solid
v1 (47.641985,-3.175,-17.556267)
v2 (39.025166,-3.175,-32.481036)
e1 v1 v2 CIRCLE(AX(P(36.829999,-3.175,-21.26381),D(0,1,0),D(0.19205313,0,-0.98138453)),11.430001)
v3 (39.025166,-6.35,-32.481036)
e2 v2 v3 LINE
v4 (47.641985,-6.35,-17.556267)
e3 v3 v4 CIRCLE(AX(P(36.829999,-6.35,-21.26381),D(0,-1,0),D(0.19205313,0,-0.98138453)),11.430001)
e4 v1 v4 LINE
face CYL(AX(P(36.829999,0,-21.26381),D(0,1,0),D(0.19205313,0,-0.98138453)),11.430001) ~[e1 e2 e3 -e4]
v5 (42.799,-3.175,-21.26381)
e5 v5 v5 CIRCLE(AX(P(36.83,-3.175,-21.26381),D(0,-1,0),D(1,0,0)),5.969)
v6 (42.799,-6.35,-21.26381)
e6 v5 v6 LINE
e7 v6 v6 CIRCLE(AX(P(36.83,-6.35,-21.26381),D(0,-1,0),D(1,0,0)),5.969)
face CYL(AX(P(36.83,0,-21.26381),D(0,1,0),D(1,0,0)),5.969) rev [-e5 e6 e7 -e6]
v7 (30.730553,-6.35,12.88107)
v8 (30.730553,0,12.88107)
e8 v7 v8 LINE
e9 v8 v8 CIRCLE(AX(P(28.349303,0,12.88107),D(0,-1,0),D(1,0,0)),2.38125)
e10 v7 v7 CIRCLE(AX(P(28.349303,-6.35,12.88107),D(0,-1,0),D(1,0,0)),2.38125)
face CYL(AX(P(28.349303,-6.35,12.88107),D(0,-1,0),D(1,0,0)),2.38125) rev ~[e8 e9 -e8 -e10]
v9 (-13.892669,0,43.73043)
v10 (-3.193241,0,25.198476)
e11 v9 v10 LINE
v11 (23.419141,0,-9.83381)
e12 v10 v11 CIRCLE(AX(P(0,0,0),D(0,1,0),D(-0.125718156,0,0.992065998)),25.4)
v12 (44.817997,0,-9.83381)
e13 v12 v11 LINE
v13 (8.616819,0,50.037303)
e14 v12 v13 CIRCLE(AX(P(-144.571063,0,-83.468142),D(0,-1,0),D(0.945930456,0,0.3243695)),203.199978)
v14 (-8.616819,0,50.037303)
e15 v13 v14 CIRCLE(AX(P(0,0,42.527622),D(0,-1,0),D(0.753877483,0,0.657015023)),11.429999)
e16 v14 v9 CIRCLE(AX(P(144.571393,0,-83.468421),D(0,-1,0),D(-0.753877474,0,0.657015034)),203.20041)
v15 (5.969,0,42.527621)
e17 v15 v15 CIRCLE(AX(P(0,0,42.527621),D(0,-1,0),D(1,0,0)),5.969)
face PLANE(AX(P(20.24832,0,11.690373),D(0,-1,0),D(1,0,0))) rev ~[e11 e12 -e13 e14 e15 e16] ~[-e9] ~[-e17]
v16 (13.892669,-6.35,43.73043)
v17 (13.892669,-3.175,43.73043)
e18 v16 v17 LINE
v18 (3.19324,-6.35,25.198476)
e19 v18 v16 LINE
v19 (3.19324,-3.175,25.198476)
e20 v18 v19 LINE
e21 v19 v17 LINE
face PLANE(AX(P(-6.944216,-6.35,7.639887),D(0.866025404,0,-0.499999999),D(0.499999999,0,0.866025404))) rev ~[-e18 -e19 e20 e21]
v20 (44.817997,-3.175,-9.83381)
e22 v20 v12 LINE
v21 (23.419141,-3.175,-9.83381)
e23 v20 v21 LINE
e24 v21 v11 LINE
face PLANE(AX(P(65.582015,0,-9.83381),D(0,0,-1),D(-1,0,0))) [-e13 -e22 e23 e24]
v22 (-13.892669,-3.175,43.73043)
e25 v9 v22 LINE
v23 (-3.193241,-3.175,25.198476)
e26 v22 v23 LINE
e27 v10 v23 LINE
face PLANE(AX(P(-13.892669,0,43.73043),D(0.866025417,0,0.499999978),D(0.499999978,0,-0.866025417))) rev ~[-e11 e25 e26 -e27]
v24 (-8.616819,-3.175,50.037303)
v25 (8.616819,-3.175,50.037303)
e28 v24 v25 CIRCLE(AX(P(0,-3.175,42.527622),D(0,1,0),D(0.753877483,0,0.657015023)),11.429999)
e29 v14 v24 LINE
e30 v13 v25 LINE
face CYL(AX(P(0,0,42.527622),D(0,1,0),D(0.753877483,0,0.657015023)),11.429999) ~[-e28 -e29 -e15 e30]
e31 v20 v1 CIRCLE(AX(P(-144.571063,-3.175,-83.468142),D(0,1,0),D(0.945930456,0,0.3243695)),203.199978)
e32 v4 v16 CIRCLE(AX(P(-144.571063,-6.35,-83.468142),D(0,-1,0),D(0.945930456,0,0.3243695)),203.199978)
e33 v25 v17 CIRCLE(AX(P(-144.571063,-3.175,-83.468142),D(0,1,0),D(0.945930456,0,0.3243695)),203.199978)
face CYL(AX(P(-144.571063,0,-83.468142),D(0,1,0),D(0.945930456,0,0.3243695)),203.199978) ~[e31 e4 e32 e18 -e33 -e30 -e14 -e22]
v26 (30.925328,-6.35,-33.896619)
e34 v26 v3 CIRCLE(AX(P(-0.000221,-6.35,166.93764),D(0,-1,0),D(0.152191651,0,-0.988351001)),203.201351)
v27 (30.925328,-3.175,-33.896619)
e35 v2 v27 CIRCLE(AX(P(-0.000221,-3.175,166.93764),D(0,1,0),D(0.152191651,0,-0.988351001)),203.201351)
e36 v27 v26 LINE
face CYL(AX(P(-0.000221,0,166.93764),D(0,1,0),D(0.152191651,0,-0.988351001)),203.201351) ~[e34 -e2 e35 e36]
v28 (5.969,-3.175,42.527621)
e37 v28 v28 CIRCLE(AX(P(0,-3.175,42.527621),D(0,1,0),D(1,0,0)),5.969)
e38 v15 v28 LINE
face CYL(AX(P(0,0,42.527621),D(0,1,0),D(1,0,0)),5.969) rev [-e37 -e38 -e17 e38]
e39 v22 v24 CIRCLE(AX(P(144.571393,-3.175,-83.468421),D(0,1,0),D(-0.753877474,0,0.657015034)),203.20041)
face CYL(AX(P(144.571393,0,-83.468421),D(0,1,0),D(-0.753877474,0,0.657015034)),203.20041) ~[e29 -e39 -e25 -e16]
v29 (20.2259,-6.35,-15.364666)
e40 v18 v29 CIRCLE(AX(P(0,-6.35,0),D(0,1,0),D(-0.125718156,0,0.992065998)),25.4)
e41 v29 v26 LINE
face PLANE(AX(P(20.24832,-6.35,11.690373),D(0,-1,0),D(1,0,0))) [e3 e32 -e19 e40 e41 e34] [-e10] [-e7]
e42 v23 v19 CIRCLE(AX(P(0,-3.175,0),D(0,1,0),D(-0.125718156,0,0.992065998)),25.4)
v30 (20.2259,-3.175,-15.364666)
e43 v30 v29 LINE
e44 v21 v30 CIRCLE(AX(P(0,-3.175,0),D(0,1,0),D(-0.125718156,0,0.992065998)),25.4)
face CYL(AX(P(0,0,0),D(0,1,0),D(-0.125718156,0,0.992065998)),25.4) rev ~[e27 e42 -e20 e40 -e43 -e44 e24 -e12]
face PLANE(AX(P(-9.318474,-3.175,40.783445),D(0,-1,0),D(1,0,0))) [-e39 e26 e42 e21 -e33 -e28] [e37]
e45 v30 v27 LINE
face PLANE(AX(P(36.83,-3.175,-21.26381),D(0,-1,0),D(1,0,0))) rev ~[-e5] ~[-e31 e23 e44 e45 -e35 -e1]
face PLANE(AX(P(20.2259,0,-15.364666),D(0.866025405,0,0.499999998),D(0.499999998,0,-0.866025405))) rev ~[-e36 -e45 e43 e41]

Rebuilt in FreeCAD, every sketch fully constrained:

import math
import FreeCAD as App
import Part
import Sketcher
from FreeCAD import Vector
Q = App.Units.Quantity


def add_polygon(sketch, points):
    """Adds a closed chain of lines whose ends are joined by coincident constraints."""
    first, n = sketch.GeometryCount, len(points)
    for a, b in zip(points, points[1:] + points[:1]):
        sketch.addGeometry(Part.LineSegment(App.Vector(*a, 0), App.Vector(*b, 0)), False)
    for i in range(n):
        sketch.addConstraint(Sketcher.Constraint("Coincident", first + i, 2, first + (i + 1) % n, 1))

doc = App.newDocument("Part")
body = doc.addObject("PartDesign::Body", "Body")

# Sketch on XZ plane
sketch1 = doc.addObject("Sketcher::SketchObject", "Sketch")
body.addObject(sketch1)
sketch1.AttachmentSupport = (doc.XZ_Plane, [""])
sketch1.MapMode = "FlatFace"
sketch1.addGeometry(Part.ArcOfCircle(Part.Circle(Vector(0, 0, 0), Vector(0, 0, 1), 25), math.radians(-37), math.radians(97)), False)
sketch1.addGeometry(Part.LineSegment(Vector(20, -15, 0), Vector(31, -34, 0)), False)
sketch1.addGeometry(Part.ArcOfCircle(Part.Circle(Vector(0, 167, 0), Vector(0, 0, 1), 203), math.radians(-81.25), math.radians(-78.93)), False)
sketch1.addGeometry(Part.ArcOfCircle(Part.Circle(Vector(37, -21, 0), Vector(0, 0, 1), 11), math.radians(-79), math.radians(19)), False)
sketch1.addGeometry(Part.ArcOfCircle(Part.Circle(Vector(-145, -83, 0), Vector(0, 0, 1), 203), math.radians(19), math.radians(41)), False)
sketch1.addGeometry(Part.ArcOfCircle(Part.Circle(Vector(0, 43, 0), Vector(0, 0, 1), 11), math.radians(41), math.radians(139)), False)
sketch1.addGeometry(Part.ArcOfCircle(Part.Circle(Vector(145, -83, 0), Vector(0, 0, 1), 203), math.radians(138.93), math.radians(141.25)), False)
sketch1.addGeometry(Part.LineSegment(Vector(-14, 44, 0), Vector(-3, 25, 0)), False)
sketch1.addGeometry(Part.Circle(Vector(37, -21, 0), Vector(0, 0, 1), 6), False)
sketch1.addGeometry(Part.Circle(Vector(0, 43, 0), Vector(0, 0, 1), 6), False)
sketch1.addConstraint(Sketcher.Constraint("Coincident", 0, 1, 1, 1))
sketch1.addConstraint(Sketcher.Constraint("Coincident", 1, 2, 2, 1))
sketch1.addConstraint(Sketcher.Constraint("Tangent", 2, 2, 3, 1))
sketch1.addConstraint(Sketcher.Constraint("Tangent", 3, 2, 4, 1))
sketch1.addConstraint(Sketcher.Constraint("Tangent", 4, 2, 5, 1))
sketch1.addConstraint(Sketcher.Constraint("Tangent", 5, 2, 6, 1))
sketch1.addConstraint(Sketcher.Constraint("Coincident", 6, 2, 7, 1))
sketch1.addConstraint(Sketcher.Constraint("Coincident", 7, 2, 0, 2))
sketch1.addConstraint(Sketcher.Constraint("Coincident", 0, 3, -1, 1))
sketch1.addConstraint(Sketcher.Constraint("Coincident", 8, 3, 3, 3))
sketch1.addConstraint(Sketcher.Constraint("Coincident", 9, 3, 5, 3))
sketch1.addConstraint(Sketcher.Constraint("Equal", 3, 5))
sketch1.addConstraint(Sketcher.Constraint("Equal", 8, 9))
sketch1.addConstraint(Sketcher.Constraint("PointOnObject", 5, 3, -2))
sketch1.addConstraint(Sketcher.Constraint("Parallel", 1, 7))
sketch1.addConstraint(Sketcher.Constraint("Equal", 1, 7))
sketch1.addConstraint(Sketcher.Constraint("Radius", 0, Q("1 in")))
sketch1.addConstraint(Sketcher.Constraint("Diameter", 8, Q("0.47 in")))
sketch1.addConstraint(Sketcher.Constraint("Radius", 3, Q("0.45 in")))
sketch1.addConstraint(Sketcher.Constraint("Angle", 1, Q("-60 deg")))
sketch1.addConstraint(Sketcher.Constraint("DistanceX", -1, 1, 3, 3, Q("1.4499999 in")))
sketch1.addConstraint(Sketcher.Constraint("Radius", 2, 203.201351))
sketch1.addConstraint(Sketcher.Constraint("Radius", 4, 203.199978))
sketch1.addConstraint(Sketcher.Constraint("Radius", 6, 203.20041))
sketch1.addConstraint(Sketcher.Constraint("DistanceX", -1, 1, 0, 1, 20.2259))
sketch1.addConstraint(Sketcher.Constraint("DistanceY", 3, 2, 0, 1, 2.191601))
sketch1.addConstraint(Sketcher.Constraint("DistanceX", 2, 3, -1, 1, 0.000221))
sketch1.addConstraint(Sketcher.Constraint("DistanceY", -1, 1, 2, 3, 166.93764))
sketch1.addConstraint(Sketcher.Constraint("DistanceY", 6, 3, -1, 1, 83.468421))
pad1 = doc.addObject("PartDesign::Pad", "Pad")
body.addObject(pad1)
pad1.Profile = sketch1
pad1.Length = Q("0.25 in")

# Sketch on XZ plane
sketch2 = doc.addObject("Sketcher::SketchObject", "Sketch001")
body.addObject(sketch2)
sketch2.AttachmentSupport = (doc.XZ_Plane, [""])
sketch2.MapMode = "FlatFace"
sketch2.AttachmentOffset = App.Placement(Vector(0, 0, 0.25 * 25.4), App.Rotation())
add_polygon(sketch2, [(-39, 26), (-7, 8), (21, 55), (-12, 74)])  # lines 0-3
sketch2.addConstraint(Sketcher.Constraint("Perpendicular", 0, 1))
sketch2.addConstraint(Sketcher.Constraint("Perpendicular", 1, 2))
sketch2.addConstraint(Sketcher.Constraint("Perpendicular", 2, 3))
sketch2.addConstraint(Sketcher.Constraint("Angle", 0, Q("-30 deg")))
sketch2.addConstraint(Sketcher.Constraint("DistanceY", -1, 1, 2, 2, 73.927002))
sketch2.addConstraint(Sketcher.Constraint("Distance", 1, 55.032068))
sketch2.addConstraint(Sketcher.Constraint("DistanceX", -1, 1, 1, 2, 20.571818))
sketch2.addConstraint(Sketcher.Constraint("DistanceX", 2, 2, 1, 2, 32.26455))
pocket1 = doc.addObject("PartDesign::Pocket", "Pocket")
body.addObject(pocket1)
pocket1.Profile = sketch2
pocket1.Length = Q("0.125 in")

# Sketch on XZ plane
sketch3 = doc.addObject("Sketcher::SketchObject", "Sketch002")
body.addObject(sketch3)
sketch3.AttachmentSupport = (doc.XZ_Plane, [""])
sketch3.MapMode = "FlatFace"
add_polygon(sketch3, [(2, -10), (2, -59), (66, -59), (66, -10)])  # lines 0-3
sketch3.addGeometry(Part.Circle(Vector(37, -21, 0), Vector(0, 0, 1), 6), False)  # 4
sketch3.addConstraint(Sketcher.Constraint("Vertical", 0))
sketch3.addConstraint(Sketcher.Constraint("Horizontal", 1))
sketch3.addConstraint(Sketcher.Constraint("Vertical", 2))
sketch3.addConstraint(Sketcher.Constraint("Horizontal", 3))
sketch3.addConstraint(Sketcher.Constraint("Diameter", 4, Q("0.47 in")))
sketch3.addConstraint(Sketcher.Constraint("DistanceX", -1, 1, 4, 3, Q("1.45 in")))
sketch3.addConstraint(Sketcher.Constraint("DistanceY", 4, 3, 2, 2, Q("0.45 in")))
sketch3.addConstraint(Sketcher.Constraint("DistanceX", 1, 1, 1, 2, 63.81648))
sketch3.addConstraint(Sketcher.Constraint("DistanceY", 0, 2, 0, 1, 49.398224))
sketch3.addConstraint(Sketcher.Constraint("DistanceY", 4, 3, -1, 1, 21.26381))
sketch3.addConstraint(Sketcher.Constraint("DistanceX", -1, 1, 0, 2, 1.765535))
pocket2 = doc.addObject("PartDesign::Pocket", "Pocket001")
body.addObject(pocket2)
pocket2.Profile = sketch3
pocket2.Length = Q("0.125 in")
pocket2.Reversed = True

# Sketch on XZ plane
sketch4 = doc.addObject("Sketcher::SketchObject", "Sketch003")
body.addObject(sketch4)
sketch4.AttachmentSupport = (doc.XZ_Plane, [""])
sketch4.MapMode = "FlatFace"
sketch4.AttachmentOffset = App.Placement(Vector(0, 0, 0.25 * 25.4), App.Rotation())
sketch4.addGeometry(Part.Circle(Vector(28.3, 12.9, 0), Vector(0, 0, 1), 2.4), False)
sketch4.addConstraint(Sketcher.Constraint("Diameter", 0, Q("0.1875 in")))
sketch4.addConstraint(Sketcher.Constraint("DistanceY", -1, 1, 0, 3, 12.88107))
sketch4.addConstraint(Sketcher.Constraint("DistanceX", -1, 1, 0, 3, 28.349303))
pocket3 = doc.addObject("PartDesign::Pocket", "Pocket002")
body.addObject(pocket3)
pocket3.Profile = sketch4
pocket3.Length = Q("1 in")

doc.recompute()
